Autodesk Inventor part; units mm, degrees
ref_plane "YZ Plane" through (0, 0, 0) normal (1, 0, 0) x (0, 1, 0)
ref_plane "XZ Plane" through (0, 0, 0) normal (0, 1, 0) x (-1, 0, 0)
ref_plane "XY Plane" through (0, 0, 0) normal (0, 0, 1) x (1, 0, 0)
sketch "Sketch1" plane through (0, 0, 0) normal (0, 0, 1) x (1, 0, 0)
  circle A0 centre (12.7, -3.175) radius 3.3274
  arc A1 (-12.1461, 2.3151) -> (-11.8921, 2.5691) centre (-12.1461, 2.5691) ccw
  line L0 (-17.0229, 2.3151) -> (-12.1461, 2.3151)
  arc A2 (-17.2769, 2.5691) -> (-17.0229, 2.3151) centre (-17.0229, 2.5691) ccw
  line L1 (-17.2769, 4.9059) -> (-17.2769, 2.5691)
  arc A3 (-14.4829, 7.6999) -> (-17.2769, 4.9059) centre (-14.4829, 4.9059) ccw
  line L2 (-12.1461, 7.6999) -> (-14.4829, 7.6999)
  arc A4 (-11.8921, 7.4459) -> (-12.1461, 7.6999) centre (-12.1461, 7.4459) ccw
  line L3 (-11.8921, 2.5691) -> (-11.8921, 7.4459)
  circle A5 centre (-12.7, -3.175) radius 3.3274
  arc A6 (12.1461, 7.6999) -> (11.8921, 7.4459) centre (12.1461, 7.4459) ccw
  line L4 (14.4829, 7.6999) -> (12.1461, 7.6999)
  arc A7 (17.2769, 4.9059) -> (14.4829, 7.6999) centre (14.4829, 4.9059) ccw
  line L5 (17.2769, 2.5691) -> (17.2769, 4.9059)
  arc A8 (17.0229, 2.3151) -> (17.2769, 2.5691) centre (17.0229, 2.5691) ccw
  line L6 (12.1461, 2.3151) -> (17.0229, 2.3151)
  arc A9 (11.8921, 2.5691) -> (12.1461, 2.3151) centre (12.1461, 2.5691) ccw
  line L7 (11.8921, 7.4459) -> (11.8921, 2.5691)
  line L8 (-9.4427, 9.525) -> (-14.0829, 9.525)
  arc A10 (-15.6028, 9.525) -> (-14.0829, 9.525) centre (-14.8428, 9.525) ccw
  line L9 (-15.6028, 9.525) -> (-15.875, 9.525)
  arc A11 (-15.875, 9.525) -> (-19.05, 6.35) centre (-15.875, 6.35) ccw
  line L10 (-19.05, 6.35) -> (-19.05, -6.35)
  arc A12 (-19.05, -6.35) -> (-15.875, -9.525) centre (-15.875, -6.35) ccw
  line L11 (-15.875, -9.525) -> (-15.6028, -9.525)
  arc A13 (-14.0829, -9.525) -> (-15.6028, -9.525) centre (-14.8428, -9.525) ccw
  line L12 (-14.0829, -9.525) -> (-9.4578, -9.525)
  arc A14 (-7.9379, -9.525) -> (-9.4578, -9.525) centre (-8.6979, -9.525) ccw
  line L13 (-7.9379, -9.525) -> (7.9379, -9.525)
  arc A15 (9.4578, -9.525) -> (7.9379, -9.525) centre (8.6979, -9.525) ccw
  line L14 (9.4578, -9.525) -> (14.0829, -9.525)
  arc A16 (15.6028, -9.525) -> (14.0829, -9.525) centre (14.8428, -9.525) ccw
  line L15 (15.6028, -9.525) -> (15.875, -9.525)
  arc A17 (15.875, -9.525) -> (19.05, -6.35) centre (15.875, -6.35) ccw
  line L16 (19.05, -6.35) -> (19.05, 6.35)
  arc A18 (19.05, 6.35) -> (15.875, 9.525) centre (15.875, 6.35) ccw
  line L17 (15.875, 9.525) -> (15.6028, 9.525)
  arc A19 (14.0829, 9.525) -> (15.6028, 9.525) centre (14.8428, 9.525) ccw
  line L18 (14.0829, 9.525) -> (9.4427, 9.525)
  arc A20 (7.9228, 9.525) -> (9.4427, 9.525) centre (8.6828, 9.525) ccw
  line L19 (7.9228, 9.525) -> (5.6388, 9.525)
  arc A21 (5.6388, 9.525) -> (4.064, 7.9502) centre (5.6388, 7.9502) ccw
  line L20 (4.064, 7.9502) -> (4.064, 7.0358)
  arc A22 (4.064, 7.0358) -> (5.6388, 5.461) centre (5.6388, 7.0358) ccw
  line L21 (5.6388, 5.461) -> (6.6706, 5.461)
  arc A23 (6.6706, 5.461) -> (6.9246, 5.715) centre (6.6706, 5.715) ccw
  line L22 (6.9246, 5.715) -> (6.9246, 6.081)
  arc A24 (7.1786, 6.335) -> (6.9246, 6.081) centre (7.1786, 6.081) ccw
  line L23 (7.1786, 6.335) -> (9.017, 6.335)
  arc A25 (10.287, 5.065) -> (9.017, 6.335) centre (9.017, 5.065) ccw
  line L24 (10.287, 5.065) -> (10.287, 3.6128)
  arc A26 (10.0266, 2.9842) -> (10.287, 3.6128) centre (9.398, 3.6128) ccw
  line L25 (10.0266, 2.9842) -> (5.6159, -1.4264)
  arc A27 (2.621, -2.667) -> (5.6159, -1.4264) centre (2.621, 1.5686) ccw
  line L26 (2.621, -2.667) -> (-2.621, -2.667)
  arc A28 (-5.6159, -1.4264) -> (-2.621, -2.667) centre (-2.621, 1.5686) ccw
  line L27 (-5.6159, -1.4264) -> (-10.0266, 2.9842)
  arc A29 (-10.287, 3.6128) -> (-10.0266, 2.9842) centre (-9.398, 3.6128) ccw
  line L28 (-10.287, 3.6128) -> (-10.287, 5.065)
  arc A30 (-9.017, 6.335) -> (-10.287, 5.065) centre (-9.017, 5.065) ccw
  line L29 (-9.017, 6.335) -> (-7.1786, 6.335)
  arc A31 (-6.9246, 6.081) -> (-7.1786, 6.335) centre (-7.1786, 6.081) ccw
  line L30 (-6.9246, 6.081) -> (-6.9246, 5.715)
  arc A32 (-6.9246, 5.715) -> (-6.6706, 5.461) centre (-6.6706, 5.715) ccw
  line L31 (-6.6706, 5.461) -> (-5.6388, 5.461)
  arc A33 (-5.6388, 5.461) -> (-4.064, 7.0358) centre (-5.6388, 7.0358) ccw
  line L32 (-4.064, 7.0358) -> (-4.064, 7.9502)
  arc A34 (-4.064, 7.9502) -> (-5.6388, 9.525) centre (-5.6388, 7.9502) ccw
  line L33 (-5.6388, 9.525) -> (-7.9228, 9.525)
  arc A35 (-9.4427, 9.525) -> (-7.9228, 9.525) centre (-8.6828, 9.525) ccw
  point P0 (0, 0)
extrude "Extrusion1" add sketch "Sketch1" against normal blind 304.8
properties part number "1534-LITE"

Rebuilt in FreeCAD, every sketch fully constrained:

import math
import FreeCAD as App
import Part
import Sketcher
from FreeCAD import Vector
Q = App.Units.Quantity

doc = App.newDocument("Part")
body = doc.addObject("PartDesign::Body", "Body")

sketch1 = body.newObject("Sketcher::SketchObject", "Sketch")
sketch1.AttachmentSupport = (doc.getObject("XY_Plane"), [""])
sketch1.MapMode = "FlatFace"
sketch1.addGeometry([
    Part.ArcOfCircle(Part.Circle(Vector(-8.68, 9.53, 0), Vector(0, 0, 1), 0.76), math.radians(180), math.radians(360)),
    Part.LineSegment(Vector(-9.44, 9.53, 0), Vector(-14.08, 9.53, 0)),
    Part.ArcOfCircle(Part.Circle(Vector(-14.84, 9.53, 0), Vector(0, 0, 1), 0.76), math.radians(180), math.radians(360)),
    Part.LineSegment(Vector(-15.6, 9.53, 0), Vector(-15.88, 9.53, 0)),
    Part.ArcOfCircle(Part.Circle(Vector(-15.88, 6.35, 0), Vector(0, 0, 1), 3.18), math.radians(90), math.radians(180)),
    Part.LineSegment(Vector(-19.05, 6.35, 0), Vector(-19.05, -6.35, 0)),
    Part.ArcOfCircle(Part.Circle(Vector(-15.88, -6.35, 0), Vector(0, 0, 1), 3.18), math.radians(180), math.radians(270)),
    Part.LineSegment(Vector(-15.88, -9.53, 0), Vector(-15.6, -9.53, 0)),
    Part.ArcOfCircle(Part.Circle(Vector(-14.84, -9.53, 0), Vector(0, 0, 1), 0.76), math.radians(0), math.radians(180)),
    Part.LineSegment(Vector(-14.08, -9.53, 0), Vector(-9.46, -9.53, 0)),
    Part.ArcOfCircle(Part.Circle(Vector(-8.7, -9.53, 0), Vector(0, 0, 1), 0.76), math.radians(0), math.radians(180)),
    Part.LineSegment(Vector(-7.94, -9.53, 0), Vector(7.94, -9.53, 0)),
    Part.ArcOfCircle(Part.Circle(Vector(8.7, -9.53, 0), Vector(0, 0, 1), 0.76), math.radians(0), math.radians(180)),
    Part.LineSegment(Vector(9.46, -9.53, 0), Vector(14.08, -9.53, 0)),
    Part.ArcOfCircle(Part.Circle(Vector(14.84, -9.53, 0), Vector(0, 0, 1), 0.76), math.radians(0), math.radians(180)),
    Part.LineSegment(Vector(15.6, -9.53, 0), Vector(15.88, -9.53, 0)),
    Part.ArcOfCircle(Part.Circle(Vector(15.88, -6.35, 0), Vector(0, 0, 1), 3.18), math.radians(-90), math.radians(0)),
    Part.LineSegment(Vector(19.05, -6.35, 0), Vector(19.05, 6.35, 0)),
    Part.ArcOfCircle(Part.Circle(Vector(15.88, 6.35, 0), Vector(0, 0, 1), 3.18), math.radians(0), math.radians(90)),
    Part.LineSegment(Vector(15.88, 9.53, 0), Vector(15.6, 9.53, 0)),
    Part.ArcOfCircle(Part.Circle(Vector(14.84, 9.53, 0), Vector(0, 0, 1), 0.76), math.radians(180), math.radians(360)),
    Part.LineSegment(Vector(14.08, 9.53, 0), Vector(9.44, 9.53, 0)),
    Part.ArcOfCircle(Part.Circle(Vector(8.68, 9.53, 0), Vector(0, 0, 1), 0.76), math.radians(180), math.radians(360)),
    Part.LineSegment(Vector(7.92, 9.53, 0), Vector(5.64, 9.53, 0)),
    Part.ArcOfCircle(Part.Circle(Vector(5.64, 7.95, 0), Vector(0, 0, 1), 1.57), math.radians(90), math.radians(180)),
    Part.LineSegment(Vector(4.06, 7.95, 0), Vector(4.06, 7.04, 0)),
    Part.ArcOfCircle(Part.Circle(Vector(5.64, 7.04, 0), Vector(0, 0, 1), 1.57), math.radians(180), math.radians(270)),
    Part.LineSegment(Vector(5.64, 5.46, 0), Vector(6.67, 5.46, 0)),
    Part.ArcOfCircle(Part.Circle(Vector(6.67, 5.71, 0), Vector(0, 0, 1), 0.25), math.radians(-90), math.radians(0)),
    Part.LineSegment(Vector(6.92, 5.71, 0), Vector(6.92, 6.08, 0)),
    Part.ArcOfCircle(Part.Circle(Vector(7.18, 6.08, 0), Vector(0, 0, 1), 0.25), math.radians(90), math.radians(180)),
    Part.LineSegment(Vector(7.18, 6.33, 0), Vector(9.02, 6.33, 0)),
    Part.ArcOfCircle(Part.Circle(Vector(9.02, 5.07, 0), Vector(0, 0, 1), 1.27), math.radians(0), math.radians(90)),
    Part.LineSegment(Vector(10.29, 5.07, 0), Vector(10.29, 3.61, 0)),
    Part.ArcOfCircle(Part.Circle(Vector(9.4, 3.61, 0), Vector(0, 0, 1), 0.89), math.radians(-45), math.radians(0)),
    Part.LineSegment(Vector(10.03, 2.98, 0), Vector(5.62, -1.43, 0)),
    Part.ArcOfCircle(Part.Circle(Vector(2.62, 1.57, 0), Vector(0, 0, 1), 4.24), math.radians(-90), math.radians(-45)),
    Part.LineSegment(Vector(2.62, -2.67, 0), Vector(-2.62, -2.67, 0)),
    Part.ArcOfCircle(Part.Circle(Vector(-2.62, 1.57, 0), Vector(0, 0, 1), 4.24), math.radians(-135), math.radians(-90)),
    Part.LineSegment(Vector(-5.62, -1.43, 0), Vector(-10.03, 2.98, 0)),
    Part.ArcOfCircle(Part.Circle(Vector(-9.4, 3.61, 0), Vector(0, 0, 1), 0.89), math.radians(180), math.radians(225)),
    Part.LineSegment(Vector(-10.29, 3.61, 0), Vector(-10.29, 5.07, 0)),
    Part.ArcOfCircle(Part.Circle(Vector(-9.02, 5.07, 0), Vector(0, 0, 1), 1.27), math.radians(90), math.radians(180)),
    Part.LineSegment(Vector(-9.02, 6.33, 0), Vector(-7.18, 6.33, 0)),
    Part.ArcOfCircle(Part.Circle(Vector(-7.18, 6.08, 0), Vector(0, 0, 1), 0.25), math.radians(0), math.radians(90)),
    Part.LineSegment(Vector(-6.92, 6.08, 0), Vector(-6.92, 5.71, 0)),
    Part.ArcOfCircle(Part.Circle(Vector(-6.67, 5.71, 0), Vector(0, 0, 1), 0.25), math.radians(180), math.radians(270)),
    Part.LineSegment(Vector(-6.67, 5.46, 0), Vector(-5.64, 5.46, 0)),
    Part.ArcOfCircle(Part.Circle(Vector(-5.64, 7.04, 0), Vector(0, 0, 1), 1.57), math.radians(-90), math.radians(0)),
    Part.LineSegment(Vector(-4.06, 7.04, 0), Vector(-4.06, 7.95, 0)),
    Part.ArcOfCircle(Part.Circle(Vector(-5.64, 7.95, 0), Vector(0, 0, 1), 1.57), math.radians(0), math.radians(90)),
    Part.LineSegment(Vector(-5.64, 9.53, 0), Vector(-7.92, 9.53, 0)),
    Part.Circle(Vector(-12.7, -3.17, 0), Vector(0, 0, 1), 3.33),
    Part.Circle(Vector(12.7, -3.17, 0), Vector(0, 0, 1), 3.33),
    Part.ArcOfCircle(Part.Circle(Vector(-12.15, 2.57, 0), Vector(0, 0, 1), 0.25), math.radians(-90), math.radians(0)),
    Part.LineSegment(Vector(-12.15, 2.32, 0), Vector(-17.02, 2.32, 0)),
    Part.ArcOfCircle(Part.Circle(Vector(-17.02, 2.57, 0), Vector(0, 0, 1), 0.25), math.radians(180), math.radians(270)),
    Part.LineSegment(Vector(-17.28, 2.57, 0), Vector(-17.28, 4.91, 0)),
    Part.ArcOfCircle(Part.Circle(Vector(-14.48, 4.91, 0), Vector(0, 0, 1), 2.79), math.radians(90), math.radians(180)),
    Part.LineSegment(Vector(-14.48, 7.7, 0), Vector(-12.15, 7.7, 0)),
    Part.ArcOfCircle(Part.Circle(Vector(-12.15, 7.45, 0), Vector(0, 0, 1), 0.25), math.radians(0), math.radians(90)),
    Part.LineSegment(Vector(-11.89, 7.45, 0), Vector(-11.89, 2.57, 0)),
    Part.ArcOfCircle(Part.Circle(Vector(12.15, 7.45, 0), Vector(0, 0, 1), 0.25), math.radians(90), math.radians(180)),
    Part.LineSegment(Vector(12.15, 7.7, 0), Vector(14.48, 7.7, 0)),
    Part.ArcOfCircle(Part.Circle(Vector(14.48, 4.91, 0), Vector(0, 0, 1), 2.79), math.radians(0), math.radians(90)),
    Part.LineSegment(Vector(17.28, 4.91, 0), Vector(17.28, 2.57, 0)),
    Part.ArcOfCircle(Part.Circle(Vector(17.02, 2.57, 0), Vector(0, 0, 1), 0.25), math.radians(-90), math.radians(0)),
    Part.LineSegment(Vector(17.02, 2.32, 0), Vector(12.15, 2.32, 0)),
    Part.ArcOfCircle(Part.Circle(Vector(12.15, 2.57, 0), Vector(0, 0, 1), 0.25), math.radians(180), math.radians(270)),
    Part.LineSegment(Vector(11.89, 2.57, 0), Vector(11.89, 7.45, 0)),
], False)
sketch1.addConstraint([
    Sketcher.Constraint("Coincident", 0, 1, 1, 1),
    Sketcher.Constraint("Coincident", 1, 2, 2, 2),
    Sketcher.Constraint("Coincident", 2, 1, 3, 1),
    Sketcher.Constraint("Tangent", 3, 2, 4, 1),
    Sketcher.Constraint("Tangent", 4, 2, 5, 1),
    Sketcher.Constraint("Tangent", 5, 2, 6, 1),
    Sketcher.Constraint("Tangent", 6, 2, 7, 1),
    Sketcher.Constraint("Coincident", 7, 2, 8, 2),
    Sketcher.Constraint("Coincident", 8, 1, 9, 1),
    Sketcher.Constraint("Coincident", 9, 2, 10, 2),
    Sketcher.Constraint("Coincident", 10, 1, 11, 1),
    Sketcher.Constraint("Coincident", 11, 2, 12, 2),
    Sketcher.Constraint("Coincident", 12, 1, 13, 1),
    Sketcher.Constraint("Coincident", 13, 2, 14, 2),
    Sketcher.Constraint("Coincident", 14, 1, 15, 1),
    Sketcher.Constraint("Tangent", 15, 2, 16, 1),
    Sketcher.Constraint("Tangent", 16, 2, 17, 1),
    Sketcher.Constraint("Tangent", 17, 2, 18, 1),
    Sketcher.Constraint("Tangent", 18, 2, 19, 1),
    Sketcher.Constraint("Coincident", 19, 2, 20, 2),
    Sketcher.Constraint("Coincident", 20, 1, 21, 1),
    Sketcher.Constraint("Coincident", 21, 2, 22, 2),
    Sketcher.Constraint("Coincident", 22, 1, 23, 1),
    Sketcher.Constraint("Tangent", 23, 2, 24, 1),
    Sketcher.Constraint("Tangent", 24, 2, 25, 1),
    Sketcher.Constraint("Tangent", 25, 2, 26, 1),
    Sketcher.Constraint("Tangent", 26, 2, 27, 1),
    Sketcher.Constraint("Tangent", 27, 2, 28, 1),
    Sketcher.Constraint("Tangent", 28, 2, 29, 1),
    Sketcher.Constraint("Tangent", 29, 2, 30, 2),
    Sketcher.Constraint("Tangent", 30, 1, 31, 1),
    Sketcher.Constraint("Tangent", 31, 2, 32, 2),
    Sketcher.Constraint("Tangent", 32, 1, 33, 1),
    Sketcher.Constraint("Tangent", 33, 2, 34, 2),
    Sketcher.Constraint("Tangent", 34, 1, 35, 1),
    Sketcher.Constraint("Tangent", 35, 2, 36, 2),
    Sketcher.Constraint("Tangent", 36, 1, 37, 1),
    Sketcher.Constraint("Tangent", 37, 2, 38, 2),
    Sketcher.Constraint("Tangent", 38, 1, 39, 1),
    Sketcher.Constraint("Tangent", 39, 2, 40, 2),
    Sketcher.Constraint("Tangent", 40, 1, 41, 1),
    Sketcher.Constraint("Tangent", 41, 2, 42, 2),
    Sketcher.Constraint("Tangent", 42, 1, 43, 1),
    Sketcher.Constraint("Tangent", 43, 2, 44, 2),
    Sketcher.Constraint("Tangent", 44, 1, 45, 1),
    Sketcher.Constraint("Tangent", 45, 2, 46, 1),
    Sketcher.Constraint("Tangent", 46, 2, 47, 1),
    Sketcher.Constraint("Tangent", 47, 2, 48, 1),
    Sketcher.Constraint("Tangent", 48, 2, 49, 1),
    Sketcher.Constraint("Tangent", 49, 2, 50, 1),
    Sketcher.Constraint("Tangent", 50, 2, 51, 1),
    Sketcher.Constraint("Coincident", 51, 2, 0, 2),
    Sketcher.Constraint("Tangent", 54, 1, 55, 1),
    Sketcher.Constraint("Tangent", 55, 2, 56, 2),
    Sketcher.Constraint("Tangent", 56, 1, 57, 1),
    Sketcher.Constraint("Tangent", 57, 2, 58, 2),
    Sketcher.Constraint("Tangent", 58, 1, 59, 1),
    Sketcher.Constraint("Tangent", 59, 2, 60, 2),
    Sketcher.Constraint("Tangent", 60, 1, 61, 1),
    Sketcher.Constraint("Tangent", 61, 2, 54, 2),
    Sketcher.Constraint("Tangent", 62, 1, 63, 1),
    Sketcher.Constraint("Tangent", 63, 2, 64, 2),
    Sketcher.Constraint("Tangent", 64, 1, 65, 1),
    Sketcher.Constraint("Tangent", 65, 2, 66, 2),
    Sketcher.Constraint("Tangent", 66, 1, 67, 1),
    Sketcher.Constraint("Tangent", 67, 2, 68, 2),
    Sketcher.Constraint("Tangent", 68, 1, 69, 1),
    Sketcher.Constraint("Tangent", 69, 2, 62, 2),
    Sketcher.Constraint("Horizontal", 1),
    Sketcher.Constraint("Horizontal", 3),
    Sketcher.Constraint("Vertical", 5),
    Sketcher.Constraint("Horizontal", 7),
    Sketcher.Constraint("Horizontal", 9),
    Sketcher.Constraint("Horizontal", 11),
    Sketcher.Constraint("Horizontal", 13),
    Sketcher.Constraint("Horizontal", 15),
    Sketcher.Constraint("Vertical", 17),
    Sketcher.Constraint("Horizontal", 19),
    Sketcher.Constraint("Horizontal", 21),
    Sketcher.Constraint("Horizontal", 23),
    Sketcher.Constraint("Vertical", 25),
    Sketcher.Constraint("Horizontal", 27),
    Sketcher.Constraint("Vertical", 29),
    Sketcher.Constraint("Horizontal", 31),
    Sketcher.Constraint("Vertical", 33),
    Sketcher.Constraint("Horizontal", 37),
    Sketcher.Constraint("Vertical", 41),
    Sketcher.Constraint("Horizontal", 43),
    Sketcher.Constraint("Vertical", 45),
    Sketcher.Constraint("Horizontal", 47),
    Sketcher.Constraint("Vertical", 49),
    Sketcher.Constraint("Horizontal", 51),
    Sketcher.Constraint("Horizontal", 55),
    Sketcher.Constraint("Vertical", 57),
    Sketcher.Constraint("Horizontal", 59),
    Sketcher.Constraint("Vertical", 61),
    Sketcher.Constraint("Horizontal", 63),
    Sketcher.Constraint("Vertical", 65),
    Sketcher.Constraint("Horizontal", 67),
    Sketcher.Constraint("Vertical", 69),
    Sketcher.Constraint("Equal", 0, 2),
    Sketcher.Constraint("Equal", 4, 6),
    Sketcher.Constraint("Equal", 2, 8),
    Sketcher.Constraint("Equal", 8, 10),
    Sketcher.Constraint("Equal", 10, 12),
    Sketcher.Constraint("Equal", 12, 14),
    Sketcher.Constraint("Equal", 6, 16),
    Sketcher.Constraint("Equal", 16, 18),
    Sketcher.Constraint("Equal", 14, 20),
    Sketcher.Constraint("Equal", 20, 22),
    Sketcher.Constraint("Equal", 24, 26),
    Sketcher.Constraint("Equal", 28, 30),
    Sketcher.Constraint("Equal", 36, 38),
    Sketcher.Constraint("Equal", 34, 40),
    Sketcher.Constraint("Equal", 32, 42),
    Sketcher.Constraint("Equal", 30, 44),
    Sketcher.Constraint("Equal", 44, 46),
    Sketcher.Constraint("Equal", 26, 48),
    Sketcher.Constraint("Equal", 48, 50),
    Sketcher.Constraint("Equal", 52, 53),
    Sketcher.Constraint("Equal", 46, 54),
    Sketcher.Constraint("Equal", 54, 56),
    Sketcher.Constraint("Equal", 56, 60),
    Sketcher.Constraint("Equal", 60, 62),
    Sketcher.Constraint("Equal", 58, 64),
    Sketcher.Constraint("Equal", 62, 66),
    Sketcher.Constraint("Equal", 66, 68),
    Sketcher.Constraint("Symmetric", 2, 3, 14, 3, -1, 1),
    Sketcher.Constraint("Symmetric", 4, 3, 16, 3, -1, 1),
    Sketcher.Constraint("Symmetric", 8, 3, 20, 3, -1, 1),
    Sketcher.Constraint("Symmetric", 10, 3, 12, 3, -2),
    Sketcher.Constraint("Symmetric", 8, 3, 14, 3, -2),
    Sketcher.Constraint("Symmetric", 0, 3, 22, 3, -2),
    Sketcher.Constraint("Symmetric", 34, 3, 40, 3, -2),
    Sketcher.Constraint("Symmetric", 30, 3, 44, 3, -2),
    Sketcher.Constraint("Symmetric", 26, 3, 48, 3, -2),
    Sketcher.Constraint("Symmetric", 52, 3, 53, 3, -2),
    Sketcher.Constraint("Symmetric", 60, 3, 62, 3, -2),
    Sketcher.Constraint("Symmetric", 56, 3, 66, 3, -2),
    Sketcher.Constraint("Perpendicular", 35, 39),
    Sketcher.Constraint("Horizontal", 0, 3, 2, 3),
    Sketcher.Constraint("Horizontal", 8, 3, 10, 3),
    Sketcher.Constraint("Horizontal", 6, 3, 16, 3),
    Sketcher.Constraint("Horizontal", 4, 3, 18, 3),
    Sketcher.Constraint("Horizontal", 24, 3, 50, 3),
    Sketcher.Constraint("Horizontal", 22, 3, 0, 1),
    Sketcher.Constraint("Horizontal", 1, 2, 2, 1),
    Sketcher.Constraint("Horizontal", 7, 2, 8, 1),
    Sketcher.Constraint("Horizontal", 9, 2, 10, 1),
    Sketcher.Constraint("Horizontal", 11, 2, 12, 1),
    Sketcher.Constraint("Horizontal", 19, 2, 20, 1),
    Sketcher.Constraint("Horizontal", 21, 2, 22, 1),
    Sketcher.Constraint("Horizontal", 35, 2, 38, 1),
    Sketcher.Constraint("Equal", 63, 57),
    Sketcher.Constraint("Radius", 28, Q("0.01 in")),
    Sketcher.Constraint("Radius", 32, Q("0.05 in")),
    Sketcher.Constraint("Radius", 58, Q("0.11 in")),
    Sketcher.Constraint("Diameter", 52, Q("0.262 in")),
    Sketcher.Constraint("DistanceY", 5, 2, 5, 1, Q("0.5 in")),
    Sketcher.Constraint("Radius", 4, Q("0.125 in")),
    Sketcher.Constraint("Radius", 24, Q("0.062 in")),
    Sketcher.Constraint("Radius", 34, Q("0.035 in")),
    Sketcher.Constraint("DistanceX", 52, 3, -1, 1, Q("0.5 in")),
    Sketcher.Constraint("DistanceX", 55, 2, 55, 1, Q("0.192 in")),
    Sketcher.Constraint("DistanceY", 25, 2, 25, 1, Q("0.036 in")),
    Sketcher.Constraint("DistanceX", -1, 1, 34, 3, Q("0.37 in")),
    Sketcher.Constraint("DistanceX", 4, 2, -1, 1, Q("0.75 in")),
    Sketcher.Constraint("DistanceX", -1, 1, 24, 2, Q("0.16 in")),
    Sketcher.Constraint("Radius", 0, Q("0.76 mm")),
    Sketcher.Constraint("Radius", 36, Q("4.2356 mm")),
    Sketcher.Constraint("DistanceX", 9, 1, 9, 2, Q("0.1821 in")),
    Sketcher.Constraint("DistanceY", 29, 1, 29, 2, Q("0.0144 in")),
    Sketcher.Constraint("DistanceY", 52, 3, -1, 1, Q("0.125 in")),
    Sketcher.Constraint("DistanceY", 36, 1, -1, 1, Q("0.105 in")),
    Sketcher.Constraint("DistanceX", 1, 2, 1, 1, Q("4.6402 mm")),
    Sketcher.Constraint("DistanceX", 3, 2, 3, 1, Q("0.2722 mm")),
    Sketcher.Constraint("DistanceX", 27, 1, 27, 2, Q("1.0318 mm")),
    Sketcher.Constraint("DistanceX", 37, 2, 37, 1, Q("5.242 mm")),
    Sketcher.Constraint("DistanceX", 54, 3, -1, 1, Q("0.4782 in")),
    Sketcher.Constraint("DistanceY", -1, 1, 54, 3, Q("2.569 mm")),
])
pad1 = body.newObject("PartDesign::Pad", "Pad")
pad1.Profile = sketch1
pad1.Length = Q("12 in")
pad1.Reversed = True

doc.recompute()
